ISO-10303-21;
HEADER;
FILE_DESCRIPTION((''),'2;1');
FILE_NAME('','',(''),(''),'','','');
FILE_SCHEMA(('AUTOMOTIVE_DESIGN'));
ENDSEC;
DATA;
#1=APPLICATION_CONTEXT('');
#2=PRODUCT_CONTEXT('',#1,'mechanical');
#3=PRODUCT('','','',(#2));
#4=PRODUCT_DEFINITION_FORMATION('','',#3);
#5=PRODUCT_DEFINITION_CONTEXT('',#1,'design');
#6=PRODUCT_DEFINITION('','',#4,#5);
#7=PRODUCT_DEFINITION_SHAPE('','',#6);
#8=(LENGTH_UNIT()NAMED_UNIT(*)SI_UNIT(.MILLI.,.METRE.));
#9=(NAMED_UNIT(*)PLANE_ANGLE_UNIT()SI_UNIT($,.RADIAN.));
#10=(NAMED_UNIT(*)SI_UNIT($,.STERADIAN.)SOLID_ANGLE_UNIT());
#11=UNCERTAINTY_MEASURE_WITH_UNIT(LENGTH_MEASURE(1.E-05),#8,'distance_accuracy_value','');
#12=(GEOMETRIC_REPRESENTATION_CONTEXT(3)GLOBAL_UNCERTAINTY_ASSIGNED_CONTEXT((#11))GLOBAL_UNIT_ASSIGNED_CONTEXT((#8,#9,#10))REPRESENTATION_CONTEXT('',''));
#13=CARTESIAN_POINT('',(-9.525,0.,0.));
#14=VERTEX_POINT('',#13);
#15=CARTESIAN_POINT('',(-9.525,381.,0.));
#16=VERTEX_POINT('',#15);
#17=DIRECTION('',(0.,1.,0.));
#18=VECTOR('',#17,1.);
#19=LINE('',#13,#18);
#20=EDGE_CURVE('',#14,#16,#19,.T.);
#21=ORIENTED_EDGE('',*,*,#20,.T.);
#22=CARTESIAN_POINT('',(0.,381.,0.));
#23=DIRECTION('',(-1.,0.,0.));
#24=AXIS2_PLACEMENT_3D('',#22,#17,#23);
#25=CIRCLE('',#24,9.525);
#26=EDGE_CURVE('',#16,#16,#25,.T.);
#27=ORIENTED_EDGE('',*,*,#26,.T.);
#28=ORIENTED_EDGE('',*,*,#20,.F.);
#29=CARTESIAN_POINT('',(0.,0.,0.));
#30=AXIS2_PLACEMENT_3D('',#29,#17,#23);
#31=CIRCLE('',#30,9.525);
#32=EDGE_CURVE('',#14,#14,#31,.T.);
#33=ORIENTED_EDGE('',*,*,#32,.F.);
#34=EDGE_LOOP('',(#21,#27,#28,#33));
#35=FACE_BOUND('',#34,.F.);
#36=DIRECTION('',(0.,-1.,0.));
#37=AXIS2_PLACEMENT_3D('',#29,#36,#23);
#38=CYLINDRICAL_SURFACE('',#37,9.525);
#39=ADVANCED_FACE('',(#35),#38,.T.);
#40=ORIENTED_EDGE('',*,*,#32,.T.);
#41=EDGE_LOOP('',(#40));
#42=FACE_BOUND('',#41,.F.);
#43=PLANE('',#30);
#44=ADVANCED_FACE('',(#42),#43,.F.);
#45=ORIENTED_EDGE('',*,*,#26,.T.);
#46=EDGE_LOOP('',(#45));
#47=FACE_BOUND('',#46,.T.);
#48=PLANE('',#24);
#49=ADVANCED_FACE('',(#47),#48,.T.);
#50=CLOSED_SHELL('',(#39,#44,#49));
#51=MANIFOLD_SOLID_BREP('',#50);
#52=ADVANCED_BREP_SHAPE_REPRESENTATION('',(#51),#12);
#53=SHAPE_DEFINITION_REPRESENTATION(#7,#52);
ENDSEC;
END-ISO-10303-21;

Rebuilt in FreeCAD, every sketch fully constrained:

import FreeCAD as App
import Part
import Sketcher
from FreeCAD import Vector
Q = App.Units.Quantity

doc = App.newDocument("Part")
body = doc.addObject("PartDesign::Body", "Body")

# Sketch on XZ plane
sketch1 = body.newObject("Sketcher::SketchObject", "Sketch")
sketch1.AttachmentSupport = (doc.getObject("XZ_Plane"), [""])
sketch1.MapMode = "FlatFace"
sketch1.addGeometry(Part.Circle(Vector(0, 0, 0), Vector(0, 0, 1), 9.525), False)
sketch1.addConstraint(Sketcher.Constraint("Coincident", 0, 3, -1, 1))
sketch1.addConstraint(Sketcher.Constraint("Diameter", 0, Q("0.75 in")))
pad1 = body.newObject("PartDesign::Pad", "Pad")
pad1.Profile = sketch1
pad1.Length = Q("15 in")
pad1.Reversed = True

doc.recompute()
